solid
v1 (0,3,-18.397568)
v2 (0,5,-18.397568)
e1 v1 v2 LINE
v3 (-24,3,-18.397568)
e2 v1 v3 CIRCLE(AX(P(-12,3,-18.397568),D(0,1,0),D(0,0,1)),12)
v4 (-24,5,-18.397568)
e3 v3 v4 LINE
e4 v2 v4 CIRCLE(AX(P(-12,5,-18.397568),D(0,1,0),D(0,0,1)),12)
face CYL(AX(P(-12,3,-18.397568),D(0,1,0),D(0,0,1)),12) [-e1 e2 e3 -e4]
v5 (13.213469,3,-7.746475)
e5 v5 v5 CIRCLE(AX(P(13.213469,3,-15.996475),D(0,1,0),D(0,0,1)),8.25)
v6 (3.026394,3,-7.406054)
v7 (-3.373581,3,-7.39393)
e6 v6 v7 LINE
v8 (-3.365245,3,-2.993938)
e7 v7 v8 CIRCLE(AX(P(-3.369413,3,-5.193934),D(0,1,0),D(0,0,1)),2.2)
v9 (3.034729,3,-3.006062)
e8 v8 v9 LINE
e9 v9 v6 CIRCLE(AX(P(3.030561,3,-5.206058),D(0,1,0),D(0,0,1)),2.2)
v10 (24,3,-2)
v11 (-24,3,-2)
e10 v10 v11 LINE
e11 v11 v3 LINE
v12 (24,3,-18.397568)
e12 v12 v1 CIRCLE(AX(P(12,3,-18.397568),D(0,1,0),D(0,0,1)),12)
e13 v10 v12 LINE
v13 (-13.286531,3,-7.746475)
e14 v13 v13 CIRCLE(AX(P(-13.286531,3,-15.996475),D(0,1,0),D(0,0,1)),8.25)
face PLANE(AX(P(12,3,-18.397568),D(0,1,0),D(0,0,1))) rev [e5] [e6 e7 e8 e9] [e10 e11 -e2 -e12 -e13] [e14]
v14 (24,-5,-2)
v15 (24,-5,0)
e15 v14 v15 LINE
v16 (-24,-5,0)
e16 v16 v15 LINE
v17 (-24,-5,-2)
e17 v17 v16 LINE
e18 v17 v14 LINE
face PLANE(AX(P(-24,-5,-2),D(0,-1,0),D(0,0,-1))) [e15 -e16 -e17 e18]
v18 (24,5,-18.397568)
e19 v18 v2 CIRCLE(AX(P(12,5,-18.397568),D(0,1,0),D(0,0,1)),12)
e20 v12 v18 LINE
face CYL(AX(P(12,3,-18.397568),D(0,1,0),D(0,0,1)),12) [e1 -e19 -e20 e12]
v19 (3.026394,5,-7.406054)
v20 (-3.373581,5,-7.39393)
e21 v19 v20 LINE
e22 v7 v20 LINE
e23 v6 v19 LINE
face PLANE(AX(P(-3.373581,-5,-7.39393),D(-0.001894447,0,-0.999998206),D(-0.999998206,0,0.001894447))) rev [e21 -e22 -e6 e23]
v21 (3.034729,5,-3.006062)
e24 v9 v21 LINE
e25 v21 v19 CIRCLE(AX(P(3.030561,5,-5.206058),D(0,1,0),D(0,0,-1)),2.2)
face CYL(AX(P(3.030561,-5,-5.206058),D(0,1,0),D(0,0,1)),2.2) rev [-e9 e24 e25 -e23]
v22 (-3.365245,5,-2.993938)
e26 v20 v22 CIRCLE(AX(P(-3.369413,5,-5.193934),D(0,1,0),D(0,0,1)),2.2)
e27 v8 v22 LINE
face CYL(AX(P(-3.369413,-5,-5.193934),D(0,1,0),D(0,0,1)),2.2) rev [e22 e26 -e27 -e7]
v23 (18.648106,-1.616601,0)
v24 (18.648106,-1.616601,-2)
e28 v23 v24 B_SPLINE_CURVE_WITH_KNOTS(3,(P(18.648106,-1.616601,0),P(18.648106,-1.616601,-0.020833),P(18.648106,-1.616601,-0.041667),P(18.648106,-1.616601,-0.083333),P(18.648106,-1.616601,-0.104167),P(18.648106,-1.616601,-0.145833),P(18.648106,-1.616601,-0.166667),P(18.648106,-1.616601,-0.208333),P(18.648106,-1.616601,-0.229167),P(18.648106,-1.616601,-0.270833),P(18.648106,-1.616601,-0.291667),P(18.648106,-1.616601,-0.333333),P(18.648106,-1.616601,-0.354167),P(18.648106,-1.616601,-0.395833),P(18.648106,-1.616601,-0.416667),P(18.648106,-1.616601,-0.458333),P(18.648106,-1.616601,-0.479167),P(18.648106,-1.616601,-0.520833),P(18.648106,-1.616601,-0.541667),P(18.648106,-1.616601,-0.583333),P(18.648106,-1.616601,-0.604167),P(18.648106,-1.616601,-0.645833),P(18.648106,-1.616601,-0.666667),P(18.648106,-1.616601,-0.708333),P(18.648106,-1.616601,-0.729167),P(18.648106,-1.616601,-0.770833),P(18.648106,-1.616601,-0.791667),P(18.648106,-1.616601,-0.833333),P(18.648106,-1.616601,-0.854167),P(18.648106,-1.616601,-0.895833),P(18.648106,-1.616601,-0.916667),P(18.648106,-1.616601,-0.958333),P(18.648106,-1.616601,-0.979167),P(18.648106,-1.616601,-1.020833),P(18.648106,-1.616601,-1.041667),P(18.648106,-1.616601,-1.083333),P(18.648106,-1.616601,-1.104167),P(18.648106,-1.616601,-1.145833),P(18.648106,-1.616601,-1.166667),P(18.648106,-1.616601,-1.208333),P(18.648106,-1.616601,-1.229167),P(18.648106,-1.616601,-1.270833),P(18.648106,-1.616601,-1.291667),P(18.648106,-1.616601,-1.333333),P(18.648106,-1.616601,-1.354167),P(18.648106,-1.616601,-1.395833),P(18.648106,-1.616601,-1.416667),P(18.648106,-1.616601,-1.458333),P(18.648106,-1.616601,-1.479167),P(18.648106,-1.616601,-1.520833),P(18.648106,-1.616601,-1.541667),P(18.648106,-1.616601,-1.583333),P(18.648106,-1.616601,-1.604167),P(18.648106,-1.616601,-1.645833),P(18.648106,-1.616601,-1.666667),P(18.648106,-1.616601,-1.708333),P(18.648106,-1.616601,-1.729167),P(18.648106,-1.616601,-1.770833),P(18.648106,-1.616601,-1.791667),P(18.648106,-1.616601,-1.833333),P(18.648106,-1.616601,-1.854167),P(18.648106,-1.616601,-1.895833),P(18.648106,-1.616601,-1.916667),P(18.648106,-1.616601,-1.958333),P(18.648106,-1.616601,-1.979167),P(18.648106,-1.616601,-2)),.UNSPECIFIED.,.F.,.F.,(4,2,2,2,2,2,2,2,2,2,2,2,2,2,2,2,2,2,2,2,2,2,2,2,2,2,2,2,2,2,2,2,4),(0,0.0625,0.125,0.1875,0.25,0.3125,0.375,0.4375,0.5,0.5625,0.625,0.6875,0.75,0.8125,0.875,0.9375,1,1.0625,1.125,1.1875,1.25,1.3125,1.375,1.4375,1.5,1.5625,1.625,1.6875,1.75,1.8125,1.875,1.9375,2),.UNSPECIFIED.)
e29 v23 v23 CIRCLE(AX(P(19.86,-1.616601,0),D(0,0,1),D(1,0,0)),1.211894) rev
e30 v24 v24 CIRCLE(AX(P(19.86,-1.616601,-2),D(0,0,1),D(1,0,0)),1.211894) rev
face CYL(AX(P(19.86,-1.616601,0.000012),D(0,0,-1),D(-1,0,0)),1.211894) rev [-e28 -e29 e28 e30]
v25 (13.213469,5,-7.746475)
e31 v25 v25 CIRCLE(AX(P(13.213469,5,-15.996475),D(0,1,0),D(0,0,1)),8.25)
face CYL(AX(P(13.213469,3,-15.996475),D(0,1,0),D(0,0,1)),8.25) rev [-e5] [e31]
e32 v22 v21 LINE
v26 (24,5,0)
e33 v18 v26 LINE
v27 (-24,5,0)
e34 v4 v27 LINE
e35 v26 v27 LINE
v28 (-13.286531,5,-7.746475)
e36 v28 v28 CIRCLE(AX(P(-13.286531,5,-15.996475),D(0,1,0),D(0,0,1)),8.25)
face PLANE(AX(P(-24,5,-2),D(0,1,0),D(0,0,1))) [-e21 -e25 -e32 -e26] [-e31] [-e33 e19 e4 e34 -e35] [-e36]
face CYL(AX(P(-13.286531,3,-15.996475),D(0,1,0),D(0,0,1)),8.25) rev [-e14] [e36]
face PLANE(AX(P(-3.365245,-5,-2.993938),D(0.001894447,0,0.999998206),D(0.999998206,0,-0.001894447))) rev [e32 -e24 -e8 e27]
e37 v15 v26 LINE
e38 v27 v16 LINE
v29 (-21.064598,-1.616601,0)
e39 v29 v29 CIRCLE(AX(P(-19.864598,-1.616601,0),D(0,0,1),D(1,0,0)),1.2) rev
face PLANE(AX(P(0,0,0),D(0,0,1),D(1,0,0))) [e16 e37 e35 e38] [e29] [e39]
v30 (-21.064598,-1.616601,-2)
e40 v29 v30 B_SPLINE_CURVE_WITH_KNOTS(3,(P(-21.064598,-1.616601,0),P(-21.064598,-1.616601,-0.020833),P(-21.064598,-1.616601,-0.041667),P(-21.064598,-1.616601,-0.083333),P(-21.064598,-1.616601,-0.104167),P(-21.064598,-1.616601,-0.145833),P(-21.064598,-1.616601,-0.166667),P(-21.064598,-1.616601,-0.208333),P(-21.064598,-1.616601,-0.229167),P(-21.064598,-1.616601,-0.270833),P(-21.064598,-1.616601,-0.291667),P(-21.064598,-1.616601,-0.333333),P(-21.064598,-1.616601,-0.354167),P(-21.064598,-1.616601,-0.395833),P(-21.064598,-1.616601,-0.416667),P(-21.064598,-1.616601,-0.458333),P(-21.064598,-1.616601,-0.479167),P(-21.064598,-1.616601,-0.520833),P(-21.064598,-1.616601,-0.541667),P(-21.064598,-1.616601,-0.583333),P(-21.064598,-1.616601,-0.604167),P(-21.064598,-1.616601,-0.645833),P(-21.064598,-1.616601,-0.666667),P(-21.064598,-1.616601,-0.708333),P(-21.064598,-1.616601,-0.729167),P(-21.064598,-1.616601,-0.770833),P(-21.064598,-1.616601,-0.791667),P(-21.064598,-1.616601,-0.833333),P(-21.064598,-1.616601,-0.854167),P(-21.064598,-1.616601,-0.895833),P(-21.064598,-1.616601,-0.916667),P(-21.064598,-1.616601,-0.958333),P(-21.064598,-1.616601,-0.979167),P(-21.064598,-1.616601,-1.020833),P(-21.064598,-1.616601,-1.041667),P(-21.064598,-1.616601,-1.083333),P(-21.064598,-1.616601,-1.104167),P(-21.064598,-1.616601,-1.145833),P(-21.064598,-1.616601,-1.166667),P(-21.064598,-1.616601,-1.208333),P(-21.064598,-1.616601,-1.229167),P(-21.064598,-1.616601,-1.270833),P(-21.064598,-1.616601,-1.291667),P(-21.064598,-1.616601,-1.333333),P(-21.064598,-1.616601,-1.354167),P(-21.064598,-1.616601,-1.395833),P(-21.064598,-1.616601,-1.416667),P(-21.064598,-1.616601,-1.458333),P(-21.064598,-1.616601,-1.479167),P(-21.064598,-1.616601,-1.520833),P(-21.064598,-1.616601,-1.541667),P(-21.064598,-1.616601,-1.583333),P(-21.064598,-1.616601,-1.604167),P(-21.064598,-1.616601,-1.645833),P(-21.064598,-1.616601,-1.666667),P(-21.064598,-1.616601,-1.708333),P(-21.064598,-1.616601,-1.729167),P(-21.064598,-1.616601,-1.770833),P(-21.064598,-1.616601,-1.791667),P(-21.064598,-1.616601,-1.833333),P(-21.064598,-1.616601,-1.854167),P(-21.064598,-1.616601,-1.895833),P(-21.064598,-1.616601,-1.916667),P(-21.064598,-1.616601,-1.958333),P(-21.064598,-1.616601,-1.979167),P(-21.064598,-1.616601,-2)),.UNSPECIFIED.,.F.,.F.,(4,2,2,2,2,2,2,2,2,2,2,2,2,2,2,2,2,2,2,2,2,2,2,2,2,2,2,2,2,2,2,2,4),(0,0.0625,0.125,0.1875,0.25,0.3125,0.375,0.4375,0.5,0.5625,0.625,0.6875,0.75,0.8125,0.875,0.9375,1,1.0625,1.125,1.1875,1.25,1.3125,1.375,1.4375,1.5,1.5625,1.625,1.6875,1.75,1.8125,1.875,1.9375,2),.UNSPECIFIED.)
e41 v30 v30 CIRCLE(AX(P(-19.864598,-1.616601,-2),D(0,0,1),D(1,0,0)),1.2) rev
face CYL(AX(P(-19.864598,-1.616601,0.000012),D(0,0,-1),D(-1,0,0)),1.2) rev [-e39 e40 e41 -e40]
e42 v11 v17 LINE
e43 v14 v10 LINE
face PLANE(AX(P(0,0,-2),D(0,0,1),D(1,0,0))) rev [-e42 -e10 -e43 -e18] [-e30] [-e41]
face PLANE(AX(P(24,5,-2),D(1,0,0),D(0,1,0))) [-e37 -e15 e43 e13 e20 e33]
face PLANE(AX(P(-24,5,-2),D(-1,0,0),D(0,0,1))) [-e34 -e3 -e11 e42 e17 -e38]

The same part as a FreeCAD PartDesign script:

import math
import FreeCAD as App
import Part
import Sketcher
Q = App.Units.Quantity

doc = App.newDocument("Part")
body = doc.addObject("PartDesign::Body", "Body")

sketch1 = body.newObject("Sketcher::SketchObject", "Sketch")
sketch1.AttachmentSupport = (doc.getObject("XY_Plane"), [""])
sketch1.MapMode = "FlatFace"
sketch1.addGeometry([
    Part.LineSegment(App.Vector(-24, 5, 0), App.Vector(-24, -5, 0)),
    Part.LineSegment(App.Vector(-24, -5, 0), App.Vector(24, -5, 0)),
    Part.LineSegment(App.Vector(24, -5, 0), App.Vector(24, 5, 0)),
    Part.LineSegment(App.Vector(24, 5, 0), App.Vector(-24, 5, 0)),
], False)
sketch1.addConstraint([
    Sketcher.Constraint("Coincident", 0, 2, 1, 1),
    Sketcher.Constraint("Coincident", 1, 2, 2, 1),
    Sketcher.Constraint("Coincident", 2, 2, 3, 1),
    Sketcher.Constraint("Coincident", 3, 2, 0, 1),
    Sketcher.Constraint("Vertical", 0),
    Sketcher.Constraint("Horizontal", 1),
    Sketcher.Constraint("Vertical", 2),
    Sketcher.Constraint("Horizontal", 3),
    Sketcher.Constraint("Symmetric", 0, 2, 2, 2, -1, 1),
    Sketcher.Constraint("DistanceX", 1, 1, 1, 2, Q("48 mm")),
    Sketcher.Constraint("DistanceY", 0, 2, 0, 1, Q("10 mm")),
])
pad1 = body.newObject("PartDesign::Pad", "Pad")
pad1.Profile = sketch1
pad1.Length = 2
pad1.Reversed = True

sketch2 = body.newObject("Sketcher::SketchObject", "Sketch001")
sketch2.AttachmentSupport = (doc.getObject("XZ_Plane"), [""])
sketch2.MapMode = "FlatFace"
sketch2.AttachmentOffset = App.Placement(App.Vector(0, 0, -5), App.Rotation())
sketch2.addGeometry([
    Part.ArcOfCircle(Part.Circle(App.Vector(-12, -18.397568, 0), App.Vector(0, 0, 1), 12), math.radians(-153.712161), math.radians(-26.287839)),
    Part.ArcOfCircle(Part.Circle(App.Vector(-12, -18.397568, 0), App.Vector(0, 0, 1), 12), math.radians(-180), math.radians(-153.712161)),
    Part.LineSegment(App.Vector(-24, -18.397568, 0), App.Vector(-24, -2, 0)),
    Part.LineSegment(App.Vector(-24, -2, 0), App.Vector(24, -2, 0)),
    Part.LineSegment(App.Vector(24, -2, 0), App.Vector(24, -18.397568, 0)),
    Part.ArcOfCircle(Part.Circle(App.Vector(12, -18.397568, 0), App.Vector(0, 0, 1), 12), math.radians(-26.287839), math.radians(0)),
    Part.ArcOfCircle(Part.Circle(App.Vector(12, -18.397568, 0), App.Vector(0, 0, 1), 12), math.radians(-153.712161), math.radians(-26.287839)),
    Part.ArcOfCircle(Part.Circle(App.Vector(12, -18.397568, 0), App.Vector(0, 0, 1), 12), math.radians(-180), math.radians(-153.712161)),
    Part.ArcOfCircle(Part.Circle(App.Vector(-12, -18.397568, 0), App.Vector(0, 0, 1), 12), math.radians(-26.287839), math.radians(0)),
], False)
sketch2.addConstraint([
    Sketcher.Constraint("Tangent", 0, 1, 1, 2),
    Sketcher.Constraint("Tangent", 1, 1, 2, 1),
    Sketcher.Constraint("Coincident", 2, 2, 3, 1),
    Sketcher.Constraint("Coincident", 3, 2, 4, 1),
    Sketcher.Constraint("Tangent", 4, 2, 5, 2),
    Sketcher.Constraint("Tangent", 5, 1, 6, 2),
    Sketcher.Constraint("Tangent", 6, 1, 7, 2),
    Sketcher.Constraint("Tangent", 7, 1, 8, 2),
    Sketcher.Constraint("Tangent", 8, 1, 0, 2),
    Sketcher.Constraint("Vertical", 2),
    Sketcher.Constraint("Horizontal", 3),
    Sketcher.Constraint("Vertical", 4),
    Sketcher.Constraint("Coincident", 7, 3, 5, 3),
    Sketcher.Constraint("Equal", 0, 1),
    Sketcher.Constraint("Equal", 1, 5),
    Sketcher.Constraint("Equal", 7, 8),
    Sketcher.Constraint("Symmetric", 0, 3, 5, 3, -2),
    Sketcher.Constraint("Horizontal", 0, 1, 5, 1),
    Sketcher.Constraint("Horizontal", 5, 1, 6, 1),
    Sketcher.Constraint("Horizontal", 6, 1, 8, 1),
    Sketcher.Constraint("Radius", 0, Q("12 mm")),
    Sketcher.Constraint("DistanceY", 2, 2, -1, 1, Q("2 mm")),
    Sketcher.Constraint("DistanceY", 2, 1, 2, 2, Q("16.397568 mm")),
    Sketcher.Constraint("DistanceY", 0, 1, -1, 1, Q("23.712139 mm")),
])
pad2 = body.newObject("PartDesign::Pad", "Pad001")
pad2.Profile = sketch2
pad2.Length = 2

sketch3 = body.newObject("Sketcher::SketchObject", "Sketch002")
sketch3.AttachmentSupport = (doc.getObject("XZ_Plane"), [""])
sketch3.MapMode = "FlatFace"
sketch3.AttachmentOffset = App.Placement(App.Vector(0, 0, -5), App.Rotation())
sketch3.addGeometry([
    Part.Circle(App.Vector(-13.286531, -15.996475, 0), App.Vector(0, 0, 1), 8.25),
    Part.Circle(App.Vector(13.213469, -15.996475, 0), App.Vector(0, 0, 1), 8.25),
], False)
sketch3.addConstraint([
    Sketcher.Constraint("Equal", 0, 1),
    Sketcher.Constraint("Horizontal", 0, 3, 1, 3),
    Sketcher.Constraint("Diameter", 0, Q("16.5 mm")),
    Sketcher.Constraint("DistanceX", 0, 3, 1, 3, Q("26.5 mm")),
    Sketcher.Constraint("DistanceX", 0, 3, -1, 1, Q("13.286531 mm")),
    Sketcher.Constraint("DistanceY", 0, 3, -1, 1, Q("15.996475 mm")),
])
pocket1 = body.newObject("PartDesign::Pocket", "Pocket")
pocket1.Profile = sketch3
pocket1.Length = 2
pocket1.Reversed = True

sketch4 = body.newObject("Sketcher::SketchObject", "Sketch003")
sketch4.AttachmentSupport = (doc.getObject("XZ_Plane"), [""])
sketch4.MapMode = "FlatFace"
sketch4.addGeometry([
    Part.LineSegment(App.Vector(3.026394, -7.406054, 0), App.Vector(-3.373581, -7.39393, 0)),
    Part.ArcOfCircle(Part.Circle(App.Vector(-3.369413, -5.193934, 0), App.Vector(0, 0, 1), 2.2), math.radians(89.891456), math.radians(269.891456)),
    Part.LineSegment(App.Vector(-3.365245, -2.993938, 0), App.Vector(3.034729, -3.006062, 0)),
    Part.ArcOfCircle(Part.Circle(App.Vector(3.030561, -5.206058, 0), App.Vector(0, 0, 1), 2.2), math.radians(-90.108544), math.radians(89.891456)),
], False)
sketch4.addConstraint([
    Sketcher.Constraint("Tangent", 0, 2, 1, 2),
    Sketcher.Constraint("Tangent", 1, 1, 2, 1),
    Sketcher.Constraint("Tangent", 2, 2, 3, 2),
    Sketcher.Constraint("Tangent", 3, 1, 0, 1),
    Sketcher.Constraint("Equal", 1, 3),
    Sketcher.Constraint("Radius", 1, Q("2.2 mm")),
    Sketcher.Constraint("DistanceX", -1, 1, 3, 3, Q("3.030561 mm")),
    Sketcher.Constraint("DistanceY", 3, 3, -1, 1, Q("5.206058 mm")),
    Sketcher.Constraint("DistanceX", 0, 2, -1, 1, Q("3.373581 mm")),
    Sketcher.Constraint("DistanceY", 0, 2, -1, 1, Q("7.39393 mm")),
])
pocket2 = body.newObject("PartDesign::Pocket", "Pocket001")
pocket2.Profile = sketch4
pocket2.Type = "ThroughAll"
pocket2.Midplane = True

sketch5 = body.newObject("Sketcher::SketchObject", "Sketch004")
sketch5.AttachmentSupport = (doc.getObject("XY_Plane"), [""])
sketch5.MapMode = "FlatFace"
sketch5.addGeometry([
    Part.Circle(App.Vector(-19.864598, -1.616601, 0), App.Vector(0, 0, 1), 1.2),
    Part.Circle(App.Vector(19.86, -1.616601, 0), App.Vector(0, 0, 1), 1.211894),
], False)
sketch5.addConstraint([
    Sketcher.Constraint("Horizontal", 0, 3, 1, 3),
    Sketcher.Constraint("Diameter", 0, Q("2.4 mm")),
    Sketcher.Constraint("Diameter", 1, Q("2.423788 mm")),
    Sketcher.Constraint("DistanceX", -1, 1, 1, 3, Q("19.86 mm")),
    Sketcher.Constraint("DistanceX", 0, 3, -1, 1, Q("19.864598 mm")),
    Sketcher.Constraint("DistanceY", 0, 3, -1, 1, Q("1.616601 mm")),
])
pocket3 = body.newObject("PartDesign::Pocket", "Pocket002")
pocket3.Profile = sketch5
pocket3.Type = "ThroughAll"
pocket3.Midplane = True

doc.recompute()
